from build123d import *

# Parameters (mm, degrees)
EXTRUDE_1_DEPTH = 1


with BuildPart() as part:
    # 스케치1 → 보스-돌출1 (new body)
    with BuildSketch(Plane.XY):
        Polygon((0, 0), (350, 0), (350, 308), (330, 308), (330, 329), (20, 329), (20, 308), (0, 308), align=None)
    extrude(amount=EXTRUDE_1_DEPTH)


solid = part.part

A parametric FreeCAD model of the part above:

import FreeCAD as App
import Part
import Sketcher
from FreeCAD import Vector
Q = App.Units.Quantity

doc = App.newDocument("Part")
body = doc.addObject("PartDesign::Body", "Body")

# Sketch on XY plane
sketch1 = body.newObject("Sketcher::SketchObject", "Sketch")
sketch1.AttachmentSupport = (doc.getObject("XY_Plane"), [""])
sketch1.MapMode = "FlatFace"
sketch1.addGeometry([
    Part.LineSegment(Vector(0, 0, 0), Vector(350, 0, 0)),  # 0
    Part.LineSegment(Vector(350, 0, 0), Vector(350, 308, 0)),  # 1
    Part.LineSegment(Vector(350, 308, 0), Vector(330, 308, 0)),  # 2
    Part.LineSegment(Vector(330, 308, 0), Vector(330, 329, 0)),  # 3
    Part.LineSegment(Vector(330, 329, 0), Vector(20, 329, 0)),  # 4
    Part.LineSegment(Vector(20, 329, 0), Vector(20, 308, 0)),  # 5
    Part.LineSegment(Vector(20, 308, 0), Vector(0, 308, 0)),  # 6
    Part.LineSegment(Vector(0, 308, 0), Vector(0, 0, 0)),  # 7
], False)
sketch1.addConstraint([
    Sketcher.Constraint("Coincident", 0, 2, 1, 1),
    Sketcher.Constraint("Coincident", 1, 2, 2, 1),
    Sketcher.Constraint("Coincident", 2, 2, 3, 1),
    Sketcher.Constraint("Coincident", 3, 2, 4, 1),
    Sketcher.Constraint("Coincident", 4, 2, 5, 1),
    Sketcher.Constraint("Coincident", 5, 2, 6, 1),
    Sketcher.Constraint("Coincident", 6, 2, 7, 1),
    Sketcher.Constraint("Coincident", 7, 2, 0, 1),
    Sketcher.Constraint("Horizontal", 0),
    Sketcher.Constraint("Vertical", 1),
    Sketcher.Constraint("Horizontal", 2),
    Sketcher.Constraint("Vertical", 3),
    Sketcher.Constraint("Horizontal", 4),
    Sketcher.Constraint("Vertical", 5),
    Sketcher.Constraint("Horizontal", 6),
    Sketcher.Constraint("Vertical", 7),
    Sketcher.Constraint("Coincident", 7, 2, -1, 1),
    Sketcher.Constraint("Horizontal", 2, 2, 5, 2),
    Sketcher.Constraint("Equal", 2, 6),
    Sketcher.Constraint("DistanceX", 0, 1, 0, 2, Q("350 mm")),
    Sketcher.Constraint("DistanceX", 2, 2, 2, 1, Q("20 mm")),
    Sketcher.Constraint("DistanceY", 1, 1, 1, 2, Q("308 mm")),
    Sketcher.Constraint("DistanceY", 3, 1, 3, 2, Q("21 mm")),
])
pad1 = body.newObject("PartDesign::Pad", "Pad")
pad1.Profile = sketch1
pad1.Length = 1

doc.recompute()
